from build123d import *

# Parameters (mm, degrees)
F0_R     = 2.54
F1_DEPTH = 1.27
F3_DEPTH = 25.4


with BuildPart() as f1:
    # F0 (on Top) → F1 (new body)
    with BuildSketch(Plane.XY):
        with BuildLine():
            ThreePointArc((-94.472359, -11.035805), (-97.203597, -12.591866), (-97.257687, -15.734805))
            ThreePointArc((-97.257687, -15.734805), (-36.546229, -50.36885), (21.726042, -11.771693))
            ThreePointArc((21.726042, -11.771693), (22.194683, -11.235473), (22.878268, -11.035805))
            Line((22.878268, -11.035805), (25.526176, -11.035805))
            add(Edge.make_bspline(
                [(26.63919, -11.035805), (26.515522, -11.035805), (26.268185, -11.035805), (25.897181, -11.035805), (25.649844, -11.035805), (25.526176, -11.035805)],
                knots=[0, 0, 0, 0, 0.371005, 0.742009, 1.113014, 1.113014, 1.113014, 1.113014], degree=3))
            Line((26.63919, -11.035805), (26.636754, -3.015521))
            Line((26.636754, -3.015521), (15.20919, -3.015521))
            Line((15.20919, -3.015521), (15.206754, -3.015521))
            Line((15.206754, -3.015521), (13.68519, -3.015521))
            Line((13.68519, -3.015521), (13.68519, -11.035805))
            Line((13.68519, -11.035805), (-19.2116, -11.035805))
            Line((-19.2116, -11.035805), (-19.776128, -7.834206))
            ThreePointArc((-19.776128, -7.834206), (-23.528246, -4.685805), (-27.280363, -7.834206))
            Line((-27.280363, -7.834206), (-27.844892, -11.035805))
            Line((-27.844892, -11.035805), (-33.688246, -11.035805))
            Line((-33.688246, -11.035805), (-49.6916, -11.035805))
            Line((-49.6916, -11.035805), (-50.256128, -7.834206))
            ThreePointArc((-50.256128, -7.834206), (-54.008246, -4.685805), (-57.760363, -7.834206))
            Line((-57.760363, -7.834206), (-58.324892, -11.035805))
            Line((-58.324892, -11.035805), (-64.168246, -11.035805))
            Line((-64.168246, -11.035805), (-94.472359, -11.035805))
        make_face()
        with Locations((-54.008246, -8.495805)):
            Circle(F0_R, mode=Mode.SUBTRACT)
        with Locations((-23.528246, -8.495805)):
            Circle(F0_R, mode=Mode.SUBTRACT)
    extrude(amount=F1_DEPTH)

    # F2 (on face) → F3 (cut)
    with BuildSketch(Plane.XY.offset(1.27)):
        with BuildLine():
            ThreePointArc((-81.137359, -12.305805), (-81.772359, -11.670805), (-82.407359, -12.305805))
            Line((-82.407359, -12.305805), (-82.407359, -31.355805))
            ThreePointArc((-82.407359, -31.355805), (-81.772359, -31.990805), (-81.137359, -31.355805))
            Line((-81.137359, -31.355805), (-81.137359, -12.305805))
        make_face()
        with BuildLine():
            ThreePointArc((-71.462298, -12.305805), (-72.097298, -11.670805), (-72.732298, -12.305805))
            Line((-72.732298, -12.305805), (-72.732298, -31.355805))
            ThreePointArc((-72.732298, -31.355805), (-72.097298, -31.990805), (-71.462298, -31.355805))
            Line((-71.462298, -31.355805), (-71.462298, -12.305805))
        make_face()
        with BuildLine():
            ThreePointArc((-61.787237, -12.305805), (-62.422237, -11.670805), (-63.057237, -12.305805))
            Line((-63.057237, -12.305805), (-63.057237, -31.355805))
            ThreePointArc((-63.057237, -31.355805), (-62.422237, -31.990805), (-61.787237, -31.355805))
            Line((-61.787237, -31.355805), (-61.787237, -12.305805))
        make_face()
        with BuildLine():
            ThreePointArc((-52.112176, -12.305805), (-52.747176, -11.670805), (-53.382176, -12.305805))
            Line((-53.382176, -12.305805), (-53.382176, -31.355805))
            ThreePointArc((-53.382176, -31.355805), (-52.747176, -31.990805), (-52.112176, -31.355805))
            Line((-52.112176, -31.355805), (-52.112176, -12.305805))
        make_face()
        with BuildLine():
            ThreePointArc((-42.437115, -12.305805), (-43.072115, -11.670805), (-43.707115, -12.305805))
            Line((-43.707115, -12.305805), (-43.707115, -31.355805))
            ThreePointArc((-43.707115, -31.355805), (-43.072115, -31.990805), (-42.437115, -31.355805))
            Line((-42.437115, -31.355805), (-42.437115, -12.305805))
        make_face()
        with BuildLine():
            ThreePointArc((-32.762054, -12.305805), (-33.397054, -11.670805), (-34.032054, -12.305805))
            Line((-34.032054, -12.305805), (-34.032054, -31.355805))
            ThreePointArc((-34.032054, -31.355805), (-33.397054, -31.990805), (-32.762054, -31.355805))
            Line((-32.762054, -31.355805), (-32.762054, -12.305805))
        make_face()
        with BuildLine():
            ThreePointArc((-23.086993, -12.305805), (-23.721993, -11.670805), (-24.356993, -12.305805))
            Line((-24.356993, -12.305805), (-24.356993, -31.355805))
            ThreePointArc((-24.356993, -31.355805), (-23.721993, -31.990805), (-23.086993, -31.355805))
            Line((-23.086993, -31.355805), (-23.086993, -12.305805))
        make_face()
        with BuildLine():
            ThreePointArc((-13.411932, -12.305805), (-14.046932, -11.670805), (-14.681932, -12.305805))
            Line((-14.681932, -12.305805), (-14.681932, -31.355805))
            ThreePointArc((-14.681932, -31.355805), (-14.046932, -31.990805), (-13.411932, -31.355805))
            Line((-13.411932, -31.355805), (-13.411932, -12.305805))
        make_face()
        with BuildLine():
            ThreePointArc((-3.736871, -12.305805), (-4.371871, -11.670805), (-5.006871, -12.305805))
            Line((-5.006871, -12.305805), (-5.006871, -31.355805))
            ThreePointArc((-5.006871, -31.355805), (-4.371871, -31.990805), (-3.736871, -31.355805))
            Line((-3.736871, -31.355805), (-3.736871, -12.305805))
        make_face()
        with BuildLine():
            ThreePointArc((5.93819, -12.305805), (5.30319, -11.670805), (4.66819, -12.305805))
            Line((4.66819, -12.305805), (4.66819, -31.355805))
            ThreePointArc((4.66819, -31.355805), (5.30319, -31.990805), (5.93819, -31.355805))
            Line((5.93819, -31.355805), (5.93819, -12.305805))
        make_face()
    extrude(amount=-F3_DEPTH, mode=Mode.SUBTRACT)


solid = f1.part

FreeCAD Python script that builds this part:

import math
import FreeCAD as App
import Part
import Sketcher

V = App.Vector
Q = App.Units.Quantity

doc = App.newDocument("Part")
body = doc.addObject("PartDesign::Body", "Body")

sketch1 = body.newObject("Sketcher::SketchObject", "Sketch")
sketch1.AttachmentSupport = (doc.getObject("XY_Plane"), [""])
sketch1.MapMode = "FlatFace"
sketch1.addGeometry([
    Part.ArcOfCircle(Part.Circle(V(-94.472359, -14.210806, 0), V(0, 0, 1), 3.175001), math.radians(90.000008), math.radians(208.685385)),
    Part.ArcOfCircle(Part.Circle(V(-38.765811, 16.269196, 0), V(0, 0, 1), 66.675), math.radians(-151.314598), math.radians(-24.869995)),
    Part.ArcOfCircle(Part.Circle(V(22.878269, -12.305808, 0), V(0, 0, 1), 1.270003), math.radians(90.000065), math.radians(155.12994)),
    Part.LineSegment(V(22.878268, -11.035805, 0), V(25.526176, -11.035805, 0)),
    Part.BSplineCurve([V(26.63919, -11.035805, 0), V(26.515522, -11.035805, 0), V(26.268185, -11.035805, 0), V(25.897181, -11.035805, 0), V(25.649844, -11.035805, 0), V(25.526176, -11.035805, 0)], [4, 1, 1, 4], [0, 0.371005, 0.742009, 1.113014], False, 3, [1, 1, 1, 1, 1, 1], False),
    Part.LineSegment(V(26.63919, -11.035805, 0), V(26.636754, -3.015521, 0)),
    Part.LineSegment(V(26.636754, -3.015521, 0), V(13.68519, -3.015521, 0)),
    Part.LineSegment(V(13.68519, -3.015521, 0), V(13.68519, -11.035805, 0)),
    Part.LineSegment(V(13.68519, -11.035805, 0), V(-19.2116, -11.035805, 0)),
    Part.LineSegment(V(-19.2116, -11.035805, 0), V(-19.776128, -7.834206, 0)),
    Part.ArcOfCircle(Part.Circle(V(-23.528246, -8.495805, 0), V(0, 0, 1), 3.81), math.radians(9.999989), math.radians(170.000011)),
    Part.LineSegment(V(-27.280363, -7.834206, 0), V(-27.844892, -11.035805, 0)),
    Part.LineSegment(V(-27.844892, -11.035805, 0), V(-49.6916, -11.035805, 0)),
    Part.LineSegment(V(-49.6916, -11.035805, 0), V(-50.256128, -7.834206, 0)),
    Part.ArcOfCircle(Part.Circle(V(-54.008246, -8.495805, 0), V(0, 0, 1), 3.81), math.radians(9.999989), math.radians(170.000011)),
    Part.LineSegment(V(-57.760363, -7.834206, 0), V(-58.324892, -11.035805, 0)),
    Part.LineSegment(V(-58.324892, -11.035805, 0), V(-94.472359, -11.035805, 0)),
    Part.Circle(V(-54.008246, -8.495805, 0), V(0, 0, 1), 2.54),
    Part.Circle(V(-23.528246, -8.495805, 0), V(0, 0, 1), 2.54),
], False)
sketch1.addConstraint([
    Sketcher.Constraint("Block", 4),
    Sketcher.Constraint("Tangent", 0, 2, 1, 1),
    Sketcher.Constraint("Tangent", 1, 2, 2, 2),
    Sketcher.Constraint("Tangent", 2, 1, 3, 1),
    Sketcher.Constraint("Coincident", 3, 2, 4, 2),
    Sketcher.Constraint("Coincident", 4, 1, 5, 1),
    Sketcher.Constraint("Coincident", 5, 2, 6, 1),
    Sketcher.Constraint("Coincident", 6, 2, 7, 1),
    Sketcher.Constraint("Coincident", 7, 2, 8, 1),
    Sketcher.Constraint("Coincident", 8, 2, 9, 1),
    Sketcher.Constraint("Tangent", 9, 2, 10, 1),
    Sketcher.Constraint("Tangent", 10, 2, 11, 1),
    Sketcher.Constraint("Coincident", 11, 2, 12, 1),
    Sketcher.Constraint("Coincident", 12, 2, 13, 1),
    Sketcher.Constraint("Tangent", 13, 2, 14, 1),
    Sketcher.Constraint("Tangent", 14, 2, 15, 1),
    Sketcher.Constraint("Coincident", 15, 2, 16, 1),
    Sketcher.Constraint("Tangent", 16, 2, 0, 1),
    Sketcher.Constraint("Horizontal", 3),
    Sketcher.Constraint("Horizontal", 6),
    Sketcher.Constraint("Vertical", 7),
    Sketcher.Constraint("Horizontal", 8),
    Sketcher.Constraint("Horizontal", 12),
    Sketcher.Constraint("Horizontal", 16),
    Sketcher.Constraint("Coincident", 17, 3, 14, 3),
    Sketcher.Constraint("Coincident", 18, 3, 10, 3),
    Sketcher.Constraint("Equal", 10, 14),
    Sketcher.Constraint("Equal", 17, 18),
    Sketcher.Constraint("Parallel", 9, 13),
    Sketcher.Constraint("Parallel", 11, 15),
    Sketcher.Constraint("Horizontal", 10, 3, 14, 3),
    Sketcher.Constraint("Horizontal", 3, 2, 7, 2),
    Sketcher.Constraint("Horizontal", 9, 2, 10, 2),
    Sketcher.Constraint("Horizontal", 8, 2, 11, 2),
    Sketcher.Constraint("Horizontal", 12, 2, 15, 2),
    Sketcher.Constraint("Diameter", 17, Q("0.2 in")),
    Sketcher.Constraint("Radius", 2, Q("0.0500001 in")),
    Sketcher.Constraint("Radius", 10, Q("0.15 in")),
    Sketcher.Constraint("Angle", 9, Q("99.999995 deg")),
    Sketcher.Constraint("Radius", 0, Q("0.125 in")),
    Sketcher.Constraint("Radius", 1, Q("2.625 in")),
    Sketcher.Constraint("DistanceY", 0, 3, 1, 3, Q("1.2 in")),
    Sketcher.Constraint("DistanceX", 14, 3, 10, 3, Q("1.2 in")),
    Sketcher.Constraint("DistanceY", 2, 1, 10, 3, Q("0.1 in")),
    Sketcher.Constraint("DistanceX", 10, 3, 5, 2, Q("1.975 in")),
    Sketcher.Constraint("DistanceX", 3, 1, 3, 2, 2.647908),
    Sketcher.Constraint("DistanceX", 8, 2, 8, 1, 32.89679),
    Sketcher.Constraint("DistanceX", 8, 2, -1, 1, 19.2116),
    Sketcher.Constraint("DistanceY", 7, 2, 7, 1, 8.020284),
])
pad1 = body.newObject("PartDesign::Pad", "Pad")
pad1.Profile = sketch1
pad1.Length = Q("0.05 in")

sketch2 = body.newObject("Sketcher::SketchObject", "Sketch001")
sketch2.AttachmentSupport = (doc.getObject("XY_Plane"), [""])
sketch2.MapMode = "FlatFace"
sketch2.AttachmentOffset = App.Placement(V(0, 0, 0.05 * 25.4), App.Rotation())
sketch2.addGeometry([
    Part.ArcOfCircle(Part.Circle(V(-81.772359, -12.305805, 0), V(0, 0, 1), 0.635), math.radians(0), math.radians(180)),
    Part.LineSegment(V(-82.407359, -12.305805, 0), V(-82.407359, -31.355805, 0)),
    Part.ArcOfCircle(Part.Circle(V(-81.772359, -31.355805, 0), V(0, 0, 1), 0.635), math.radians(180), math.radians(360)),
    Part.LineSegment(V(-81.137359, -31.355805, 0), V(-81.137359, -12.305805, 0)),
    Part.ArcOfCircle(Part.Circle(V(-72.097298, -12.305805, 0), V(0, 0, 1), 0.635), math.radians(0), math.radians(180)),
    Part.LineSegment(V(-72.732298, -12.305805, 0), V(-72.732298, -31.355805, 0)),
    Part.ArcOfCircle(Part.Circle(V(-72.097298, -31.355805, 0), V(0, 0, 1), 0.635), math.radians(180), math.radians(360)),
    Part.LineSegment(V(-71.462298, -31.355805, 0), V(-71.462298, -12.305805, 0)),
    Part.ArcOfCircle(Part.Circle(V(-62.422237, -12.305805, 0), V(0, 0, 1), 0.635), math.radians(0), math.radians(180)),
    Part.LineSegment(V(-63.057237, -12.305805, 0), V(-63.057237, -31.355805, 0)),
    Part.ArcOfCircle(Part.Circle(V(-62.422237, -31.355805, 0), V(0, 0, 1), 0.635), math.radians(180), math.radians(360)),
    Part.LineSegment(V(-61.787237, -31.355805, 0), V(-61.787237, -12.305805, 0)),
    Part.ArcOfCircle(Part.Circle(V(-52.747176, -12.305805, 0), V(0, 0, 1), 0.635), math.radians(0), math.radians(180)),
    Part.LineSegment(V(-53.382176, -12.305805, 0), V(-53.382176, -31.355805, 0)),
    Part.ArcOfCircle(Part.Circle(V(-52.747176, -31.355805, 0), V(0, 0, 1), 0.635), math.radians(180), math.radians(360)),
    Part.LineSegment(V(-52.112176, -31.355805, 0), V(-52.112176, -12.305805, 0)),
    Part.ArcOfCircle(Part.Circle(V(-43.072115, -12.305805, 0), V(0, 0, 1), 0.635), math.radians(0), math.radians(180)),
    Part.LineSegment(V(-43.707115, -12.305805, 0), V(-43.707115, -31.355805, 0)),
    Part.ArcOfCircle(Part.Circle(V(-43.072115, -31.355805, 0), V(0, 0, 1), 0.635), math.radians(180), math.radians(360)),
    Part.LineSegment(V(-42.437115, -31.355805, 0), V(-42.437115, -12.305805, 0)),
    Part.ArcOfCircle(Part.Circle(V(-33.397054, -12.305805, 0), V(0, 0, 1), 0.635), math.radians(0), math.radians(180)),
    Part.LineSegment(V(-34.032054, -12.305805, 0), V(-34.032054, -31.355805, 0)),
    Part.ArcOfCircle(Part.Circle(V(-33.397054, -31.355805, 0), V(0, 0, 1), 0.635), math.radians(180), math.radians(360)),
    Part.LineSegment(V(-32.762054, -31.355805, 0), V(-32.762054, -12.305805, 0)),
    Part.ArcOfCircle(Part.Circle(V(-23.721993, -12.305805, 0), V(0, 0, 1), 0.635), math.radians(0), math.radians(180)),
    Part.LineSegment(V(-24.356993, -12.305805, 0), V(-24.356993, -31.355805, 0)),
    Part.ArcOfCircle(Part.Circle(V(-23.721993, -31.355805, 0), V(0, 0, 1), 0.635), math.radians(180), math.radians(360)),
    Part.LineSegment(V(-23.086993, -31.355805, 0), V(-23.086993, -12.305805, 0)),
    Part.ArcOfCircle(Part.Circle(V(-14.046932, -12.305805, 0), V(0, 0, 1), 0.635), math.radians(0), math.radians(180)),
    Part.LineSegment(V(-14.681932, -12.305805, 0), V(-14.681932, -31.355805, 0)),
    Part.ArcOfCircle(Part.Circle(V(-14.046932, -31.355805, 0), V(0, 0, 1), 0.635), math.radians(180), math.radians(360)),
    Part.LineSegment(V(-13.411932, -31.355805, 0), V(-13.411932, -12.305805, 0)),
    Part.ArcOfCircle(Part.Circle(V(-4.371871, -12.305805, 0), V(0, 0, 1), 0.635), math.radians(0), math.radians(180)),
    Part.LineSegment(V(-5.006871, -12.305805, 0), V(-5.006871, -31.355805, 0)),
    Part.ArcOfCircle(Part.Circle(V(-4.371871, -31.355805, 0), V(0, 0, 1), 0.635), math.radians(180), math.radians(360)),
    Part.LineSegment(V(-3.736871, -31.355805, 0), V(-3.736871, -12.305805, 0)),
    Part.ArcOfCircle(Part.Circle(V(5.30319, -12.305805, 0), V(0, 0, 1), 0.635), math.radians(0), math.radians(180)),
    Part.LineSegment(V(4.66819, -12.305805, 0), V(4.66819, -31.355805, 0)),
    Part.ArcOfCircle(Part.Circle(V(5.30319, -31.355805, 0), V(0, 0, 1), 0.635), math.radians(180), math.radians(360)),
    Part.LineSegment(V(5.93819, -31.355805, 0), V(5.93819, -12.305805, 0)),
], False)
sketch2.addConstraint([
    Sketcher.Constraint("Tangent", 0, 2, 1, 1),
    Sketcher.Constraint("Tangent", 1, 2, 2, 1),
    Sketcher.Constraint("Tangent", 2, 2, 3, 1),
    Sketcher.Constraint("Tangent", 3, 2, 0, 1),
    Sketcher.Constraint("Tangent", 4, 2, 5, 1),
    Sketcher.Constraint("Tangent", 5, 2, 6, 1),
    Sketcher.Constraint("Tangent", 6, 2, 7, 1),
    Sketcher.Constraint("Tangent", 7, 2, 4, 1),
    Sketcher.Constraint("Tangent", 8, 2, 9, 1),
    Sketcher.Constraint("Tangent", 9, 2, 10, 1),
    Sketcher.Constraint("Tangent", 10, 2, 11, 1),
    Sketcher.Constraint("Tangent", 11, 2, 8, 1),
    Sketcher.Constraint("Tangent", 12, 2, 13, 1),
    Sketcher.Constraint("Tangent", 13, 2, 14, 1),
    Sketcher.Constraint("Tangent", 14, 2, 15, 1),
    Sketcher.Constraint("Tangent", 15, 2, 12, 1),
    Sketcher.Constraint("Tangent", 16, 2, 17, 1),
    Sketcher.Constraint("Tangent", 17, 2, 18, 1),
    Sketcher.Constraint("Tangent", 18, 2, 19, 1),
    Sketcher.Constraint("Tangent", 19, 2, 16, 1),
    Sketcher.Constraint("Tangent", 20, 2, 21, 1),
    Sketcher.Constraint("Tangent", 21, 2, 22, 1),
    Sketcher.Constraint("Tangent", 22, 2, 23, 1),
    Sketcher.Constraint("Tangent", 23, 2, 20, 1),
    Sketcher.Constraint("Tangent", 24, 2, 25, 1),
    Sketcher.Constraint("Tangent", 25, 2, 26, 1),
    Sketcher.Constraint("Tangent", 26, 2, 27, 1),
    Sketcher.Constraint("Tangent", 27, 2, 24, 1),
    Sketcher.Constraint("Tangent", 28, 2, 29, 1),
    Sketcher.Constraint("Tangent", 29, 2, 30, 1),
    Sketcher.Constraint("Tangent", 30, 2, 31, 1),
    Sketcher.Constraint("Tangent", 31, 2, 28, 1),
    Sketcher.Constraint("Tangent", 32, 2, 33, 1),
    Sketcher.Constraint("Tangent", 33, 2, 34, 1),
    Sketcher.Constraint("Tangent", 34, 2, 35, 1),
    Sketcher.Constraint("Tangent", 35, 2, 32, 1),
    Sketcher.Constraint("Tangent", 36, 2, 37, 1),
    Sketcher.Constraint("Tangent", 37, 2, 38, 1),
    Sketcher.Constraint("Tangent", 38, 2, 39, 1),
    Sketcher.Constraint("Tangent", 39, 2, 36, 1),
    Sketcher.Constraint("Vertical", 1),
    Sketcher.Constraint("Vertical", 3),
    Sketcher.Constraint("Vertical", 5),
    Sketcher.Constraint("Vertical", 7),
    Sketcher.Constraint("Vertical", 9),
    Sketcher.Constraint("Vertical", 11),
    Sketcher.Constraint("Vertical", 13),
    Sketcher.Constraint("Vertical", 15),
    Sketcher.Constraint("Vertical", 17),
    Sketcher.Constraint("Vertical", 19),
    Sketcher.Constraint("Vertical", 21),
    Sketcher.Constraint("Vertical", 23),
    Sketcher.Constraint("Vertical", 25),
    Sketcher.Constraint("Vertical", 27),
    Sketcher.Constraint("Vertical", 29),
    Sketcher.Constraint("Vertical", 31),
    Sketcher.Constraint("Vertical", 33),
    Sketcher.Constraint("Vertical", 35),
    Sketcher.Constraint("Vertical", 37),
    Sketcher.Constraint("Vertical", 39),
    Sketcher.Constraint("Equal", 2, 4),
    Sketcher.Constraint("Equal", 6, 8),
    Sketcher.Constraint("Equal", 10, 12),
    Sketcher.Constraint("Equal", 14, 16),
    Sketcher.Constraint("Equal", 18, 20),
    Sketcher.Constraint("Equal", 22, 24),
    Sketcher.Constraint("Equal", 26, 28),
    Sketcher.Constraint("Equal", 30, 32),
    Sketcher.Constraint("Equal", 34, 36),
    Sketcher.Constraint("Horizontal", 0, 3, 4, 3),
    Sketcher.Constraint("Horizontal", 2, 3, 6, 3),
    Sketcher.Constraint("Horizontal", 4, 3, 8, 3),
    Sketcher.Constraint("Horizontal", 6, 3, 10, 3),
    Sketcher.Constraint("Horizontal", 8, 3, 12, 3),
    Sketcher.Constraint("Horizontal", 10, 3, 14, 3),
    Sketcher.Constraint("Horizontal", 12, 3, 16, 3),
    Sketcher.Constraint("Horizontal", 14, 3, 18, 3),
    Sketcher.Constraint("Horizontal", 16, 3, 20, 3),
    Sketcher.Constraint("Horizontal", 18, 3, 22, 3),
    Sketcher.Constraint("Horizontal", 20, 3, 24, 3),
    Sketcher.Constraint("Horizontal", 22, 3, 26, 3),
    Sketcher.Constraint("Horizontal", 24, 3, 28, 3),
    Sketcher.Constraint("Horizontal", 26, 3, 30, 3),
    Sketcher.Constraint("Horizontal", 28, 3, 32, 3),
    Sketcher.Constraint("Horizontal", 30, 3, 34, 3),
    Sketcher.Constraint("Horizontal", 32, 3, 36, 3),
    Sketcher.Constraint("Horizontal", 34, 3, 38, 3),
    Sketcher.Constraint("Radius", 0, Q("0.025 in")),
    Sketcher.Constraint("DistanceY", 1, 2, 1, 1, Q("0.75 in")),
    Sketcher.Constraint("DistanceX", 4, 2, -1, 1, 72.732298),
    Sketcher.Constraint("DistanceX", 0, 3, -1, 1, 81.772359),
    Sketcher.Constraint("DistanceX", 32, 3, -1, 1, 4.371871),
    Sketcher.Constraint("DistanceX", -1, 1, 36, 3, 5.30319),
    Sketcher.Constraint("DistanceX", 4, 3, 8, 3, 9.675061),
    Sketcher.Constraint("DistanceX", 8, 3, 12, 3, 9.675061),
    Sketcher.Constraint("DistanceX", 12, 3, 16, 3, 9.675061),
    Sketcher.Constraint("DistanceX", 16, 3, 20, 3, 9.675061),
    Sketcher.Constraint("DistanceX", 20, 3, 24, 3, 9.675061),
    Sketcher.Constraint("DistanceX", 24, 3, 28, 3, 9.675061),
    Sketcher.Constraint("DistanceY", 0, 3, -1, 1, 12.305805),
])
pocket1 = body.newObject("PartDesign::Pocket", "Pocket")
pocket1.Profile = sketch2
pocket1.Length = Q("1 in")

doc.recompute()
